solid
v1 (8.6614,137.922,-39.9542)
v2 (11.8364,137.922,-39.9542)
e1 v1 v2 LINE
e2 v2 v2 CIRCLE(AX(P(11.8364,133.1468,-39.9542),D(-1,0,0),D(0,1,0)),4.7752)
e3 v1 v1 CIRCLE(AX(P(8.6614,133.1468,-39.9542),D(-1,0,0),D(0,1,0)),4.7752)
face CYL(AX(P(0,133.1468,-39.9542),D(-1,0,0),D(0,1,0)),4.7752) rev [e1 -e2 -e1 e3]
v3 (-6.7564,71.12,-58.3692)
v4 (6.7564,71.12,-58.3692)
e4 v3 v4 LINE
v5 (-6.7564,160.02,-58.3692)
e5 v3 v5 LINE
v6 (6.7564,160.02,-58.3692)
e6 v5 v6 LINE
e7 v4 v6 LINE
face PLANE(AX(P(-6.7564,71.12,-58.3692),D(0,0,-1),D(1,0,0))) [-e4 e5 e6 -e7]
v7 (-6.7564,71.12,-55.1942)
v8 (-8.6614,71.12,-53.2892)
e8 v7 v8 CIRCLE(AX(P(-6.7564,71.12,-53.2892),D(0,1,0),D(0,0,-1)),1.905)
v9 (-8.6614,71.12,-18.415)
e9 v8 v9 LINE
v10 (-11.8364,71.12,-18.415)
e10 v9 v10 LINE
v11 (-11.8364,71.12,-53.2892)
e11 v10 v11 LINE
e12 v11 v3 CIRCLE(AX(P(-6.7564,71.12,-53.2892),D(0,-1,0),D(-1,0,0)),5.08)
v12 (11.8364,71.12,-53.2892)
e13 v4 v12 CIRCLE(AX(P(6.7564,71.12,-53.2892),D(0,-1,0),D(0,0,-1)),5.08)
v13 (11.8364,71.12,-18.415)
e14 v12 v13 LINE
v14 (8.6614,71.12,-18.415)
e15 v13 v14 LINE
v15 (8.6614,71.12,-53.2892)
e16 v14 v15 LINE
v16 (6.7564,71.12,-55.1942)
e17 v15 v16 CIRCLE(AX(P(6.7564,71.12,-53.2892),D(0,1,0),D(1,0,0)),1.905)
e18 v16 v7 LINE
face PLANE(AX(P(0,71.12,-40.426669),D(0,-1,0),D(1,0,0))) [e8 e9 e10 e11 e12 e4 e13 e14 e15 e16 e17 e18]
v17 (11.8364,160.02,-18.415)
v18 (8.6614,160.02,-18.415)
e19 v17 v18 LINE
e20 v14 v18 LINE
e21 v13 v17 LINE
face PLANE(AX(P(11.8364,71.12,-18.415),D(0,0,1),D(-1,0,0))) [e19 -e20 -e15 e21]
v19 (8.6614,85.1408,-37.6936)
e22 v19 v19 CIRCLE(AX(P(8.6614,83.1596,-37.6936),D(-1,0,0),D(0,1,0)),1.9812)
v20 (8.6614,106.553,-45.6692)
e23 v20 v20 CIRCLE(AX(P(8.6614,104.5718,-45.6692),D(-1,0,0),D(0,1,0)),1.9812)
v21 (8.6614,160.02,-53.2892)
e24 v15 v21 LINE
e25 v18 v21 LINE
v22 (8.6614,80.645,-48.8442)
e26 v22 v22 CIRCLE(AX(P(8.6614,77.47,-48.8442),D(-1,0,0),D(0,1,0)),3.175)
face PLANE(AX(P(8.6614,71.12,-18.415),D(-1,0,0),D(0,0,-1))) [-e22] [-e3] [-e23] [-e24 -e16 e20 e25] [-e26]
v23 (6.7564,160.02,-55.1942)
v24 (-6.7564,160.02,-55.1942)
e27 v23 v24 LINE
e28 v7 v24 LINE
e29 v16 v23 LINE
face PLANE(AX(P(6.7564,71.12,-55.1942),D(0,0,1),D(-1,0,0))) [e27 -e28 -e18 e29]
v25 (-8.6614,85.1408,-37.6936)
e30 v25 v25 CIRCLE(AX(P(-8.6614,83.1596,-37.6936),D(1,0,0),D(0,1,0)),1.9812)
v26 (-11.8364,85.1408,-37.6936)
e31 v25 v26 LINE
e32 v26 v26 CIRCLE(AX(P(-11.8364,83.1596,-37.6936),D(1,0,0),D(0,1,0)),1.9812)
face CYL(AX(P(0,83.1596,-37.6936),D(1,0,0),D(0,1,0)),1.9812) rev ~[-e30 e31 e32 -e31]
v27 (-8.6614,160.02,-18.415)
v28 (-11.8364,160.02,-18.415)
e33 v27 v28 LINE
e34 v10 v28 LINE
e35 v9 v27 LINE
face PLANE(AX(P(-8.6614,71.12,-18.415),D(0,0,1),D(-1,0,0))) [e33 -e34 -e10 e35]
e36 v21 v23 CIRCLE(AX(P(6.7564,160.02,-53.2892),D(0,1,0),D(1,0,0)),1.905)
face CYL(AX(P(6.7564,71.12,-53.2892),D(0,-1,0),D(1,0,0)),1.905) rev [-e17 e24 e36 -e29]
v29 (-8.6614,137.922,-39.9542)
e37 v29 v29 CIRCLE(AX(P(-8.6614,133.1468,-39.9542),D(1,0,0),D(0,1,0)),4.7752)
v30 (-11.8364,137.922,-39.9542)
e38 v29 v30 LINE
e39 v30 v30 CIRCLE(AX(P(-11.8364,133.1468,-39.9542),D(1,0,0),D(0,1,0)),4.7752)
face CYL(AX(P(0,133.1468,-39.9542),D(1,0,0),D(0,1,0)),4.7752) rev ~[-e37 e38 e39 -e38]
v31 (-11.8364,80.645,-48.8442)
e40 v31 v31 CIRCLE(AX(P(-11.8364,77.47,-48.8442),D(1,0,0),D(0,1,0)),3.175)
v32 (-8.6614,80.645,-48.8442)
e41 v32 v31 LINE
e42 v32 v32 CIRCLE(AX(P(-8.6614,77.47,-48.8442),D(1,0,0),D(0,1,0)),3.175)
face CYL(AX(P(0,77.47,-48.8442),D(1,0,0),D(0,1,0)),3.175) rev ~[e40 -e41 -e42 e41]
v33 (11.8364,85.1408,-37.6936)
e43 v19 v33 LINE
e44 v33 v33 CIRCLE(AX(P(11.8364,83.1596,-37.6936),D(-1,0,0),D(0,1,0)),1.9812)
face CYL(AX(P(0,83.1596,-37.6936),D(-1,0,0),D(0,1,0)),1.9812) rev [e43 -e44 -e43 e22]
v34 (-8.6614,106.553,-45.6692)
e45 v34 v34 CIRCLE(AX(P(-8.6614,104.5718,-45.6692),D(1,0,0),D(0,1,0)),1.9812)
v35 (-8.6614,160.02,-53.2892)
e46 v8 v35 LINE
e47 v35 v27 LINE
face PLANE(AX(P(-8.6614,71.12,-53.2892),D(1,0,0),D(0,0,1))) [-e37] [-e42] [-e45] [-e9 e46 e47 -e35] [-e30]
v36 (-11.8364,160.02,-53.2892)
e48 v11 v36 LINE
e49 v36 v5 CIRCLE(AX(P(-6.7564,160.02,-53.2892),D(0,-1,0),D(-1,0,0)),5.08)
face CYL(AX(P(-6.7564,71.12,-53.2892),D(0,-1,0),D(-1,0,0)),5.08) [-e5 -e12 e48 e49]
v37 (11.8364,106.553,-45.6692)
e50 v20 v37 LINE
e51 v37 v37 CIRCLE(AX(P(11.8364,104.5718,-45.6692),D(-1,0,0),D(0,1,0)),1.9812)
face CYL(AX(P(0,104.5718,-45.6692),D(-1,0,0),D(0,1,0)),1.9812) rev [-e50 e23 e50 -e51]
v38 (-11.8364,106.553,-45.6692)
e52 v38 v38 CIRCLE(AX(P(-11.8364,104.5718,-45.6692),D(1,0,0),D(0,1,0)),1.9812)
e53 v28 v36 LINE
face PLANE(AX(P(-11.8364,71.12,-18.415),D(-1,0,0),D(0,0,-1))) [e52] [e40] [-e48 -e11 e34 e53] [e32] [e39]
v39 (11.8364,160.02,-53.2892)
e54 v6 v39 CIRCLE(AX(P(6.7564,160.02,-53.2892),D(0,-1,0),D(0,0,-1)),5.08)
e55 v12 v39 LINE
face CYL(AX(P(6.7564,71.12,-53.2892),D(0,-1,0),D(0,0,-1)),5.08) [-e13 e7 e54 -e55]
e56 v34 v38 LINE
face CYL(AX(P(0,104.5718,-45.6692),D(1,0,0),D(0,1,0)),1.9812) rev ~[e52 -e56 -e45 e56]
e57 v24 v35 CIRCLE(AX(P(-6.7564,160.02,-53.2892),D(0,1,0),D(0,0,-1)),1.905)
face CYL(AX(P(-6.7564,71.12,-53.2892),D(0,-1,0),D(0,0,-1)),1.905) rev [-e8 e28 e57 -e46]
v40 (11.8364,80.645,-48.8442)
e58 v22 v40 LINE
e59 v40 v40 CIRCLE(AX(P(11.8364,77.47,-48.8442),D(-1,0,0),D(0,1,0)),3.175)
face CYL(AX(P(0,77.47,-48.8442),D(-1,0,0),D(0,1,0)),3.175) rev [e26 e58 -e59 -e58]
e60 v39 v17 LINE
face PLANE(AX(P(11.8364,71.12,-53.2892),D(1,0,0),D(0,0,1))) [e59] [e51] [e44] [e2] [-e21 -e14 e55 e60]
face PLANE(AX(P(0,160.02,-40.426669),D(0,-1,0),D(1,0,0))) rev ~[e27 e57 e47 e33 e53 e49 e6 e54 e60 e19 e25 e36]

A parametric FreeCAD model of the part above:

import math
import FreeCAD as App
import Part
import Sketcher
Q = App.Units.Quantity

doc = App.newDocument("Part")
body = doc.addObject("PartDesign::Body", "Body")

sketch1 = body.newObject("Sketcher::SketchObject", "Sketch")
sketch1.AttachmentSupport = (doc.getObject("XZ_Plane"), [""])
sketch1.MapMode = "FlatFace"
sketch1.AttachmentOffset = App.Placement(App.Vector(0, 0, -2.8 * 25.4), App.Rotation())
sketch1.addGeometry([
    Part.LineSegment(App.Vector(-8.6614, -53.2892, 0), App.Vector(-8.6614, -18.415, 0)),
    Part.LineSegment(App.Vector(-8.6614, -18.415, 0), App.Vector(-11.8364, -18.415, 0)),
    Part.LineSegment(App.Vector(-11.8364, -18.415, 0), App.Vector(-11.8364, -53.2892, 0)),
    Part.ArcOfCircle(Part.Circle(App.Vector(-6.7564, -53.2892, 0), App.Vector(0, 0, 1), 5.08), math.radians(180), math.radians(270)),
    Part.LineSegment(App.Vector(-6.7564, -58.3692, 0), App.Vector(6.7564, -58.3692, 0)),
    Part.ArcOfCircle(Part.Circle(App.Vector(6.7564, -53.2892, 0), App.Vector(0, 0, 1), 5.08), math.radians(-90), math.radians(0)),
    Part.LineSegment(App.Vector(11.8364, -53.2892, 0), App.Vector(11.8364, -18.415, 0)),
    Part.LineSegment(App.Vector(11.8364, -18.415, 0), App.Vector(8.6614, -18.415, 0)),
    Part.LineSegment(App.Vector(8.6614, -18.415, 0), App.Vector(8.6614, -53.2892, 0)),
    Part.ArcOfCircle(Part.Circle(App.Vector(6.7564, -53.2892, 0), App.Vector(0, 0, 1), 1.905), math.radians(-90), math.radians(0)),
    Part.LineSegment(App.Vector(6.7564, -55.1942, 0), App.Vector(-6.7564, -55.1942, 0)),
    Part.ArcOfCircle(Part.Circle(App.Vector(-6.7564, -53.2892, 0), App.Vector(0, 0, 1), 1.905), math.radians(180), math.radians(270)),
], False)
sketch1.addConstraint([
    Sketcher.Constraint("Coincident", 0, 2, 1, 1),
    Sketcher.Constraint("Coincident", 1, 2, 2, 1),
    Sketcher.Constraint("Tangent", 2, 2, 3, 1),
    Sketcher.Constraint("Tangent", 3, 2, 4, 1),
    Sketcher.Constraint("Tangent", 4, 2, 5, 1),
    Sketcher.Constraint("Tangent", 5, 2, 6, 1),
    Sketcher.Constraint("Coincident", 6, 2, 7, 1),
    Sketcher.Constraint("Coincident", 7, 2, 8, 1),
    Sketcher.Constraint("Tangent", 8, 2, 9, 2),
    Sketcher.Constraint("Tangent", 9, 1, 10, 1),
    Sketcher.Constraint("Tangent", 10, 2, 11, 2),
    Sketcher.Constraint("Tangent", 11, 1, 0, 1),
    Sketcher.Constraint("Vertical", 0),
    Sketcher.Constraint("Horizontal", 1),
    Sketcher.Constraint("Vertical", 2),
    Sketcher.Constraint("Horizontal", 4),
    Sketcher.Constraint("Vertical", 6),
    Sketcher.Constraint("Horizontal", 7),
    Sketcher.Constraint("Vertical", 8),
    Sketcher.Constraint("Horizontal", 10),
    Sketcher.Constraint("Coincident", 9, 3, 5, 3),
    Sketcher.Constraint("Coincident", 11, 3, 3, 3),
    Sketcher.Constraint("Equal", 3, 5),
    Sketcher.Constraint("Symmetric", 1, 2, 6, 2, -2),
    Sketcher.Constraint("Radius", 3, Q("0.2 in")),
    Sketcher.Constraint("Radius", 9, Q("0.075 in")),
    Sketcher.Constraint("DistanceX", 4, 1, 4, 2, Q("0.532 in")),
    Sketcher.Constraint("DistanceY", 0, 1, 0, 2, Q("1.373 in")),
    Sketcher.Constraint("DistanceY", 3, 3, -1, 1, Q("2.098 in")),
])
pad1 = body.newObject("PartDesign::Pad", "Pad")
pad1.Profile = sketch1
pad1.Length = Q("3.5 in")
pad1.Reversed = True

sketch2 = body.newObject("Sketcher::SketchObject", "Sketch001")
sketch2.AttachmentSupport = (doc.getObject("YZ_Plane"), [""])
sketch2.MapMode = "FlatFace"
sketch2.addGeometry([
    Part.Circle(App.Vector(77.47, -48.8442, 0), App.Vector(0, 0, 1), 3.175),
    Part.Circle(App.Vector(83.1596, -37.6936, 0), App.Vector(0, 0, 1), 1.9812),
    Part.Circle(App.Vector(104.5718, -45.6692, 0), App.Vector(0, 0, 1), 1.9812),
    Part.Circle(App.Vector(133.1468, -39.9542, 0), App.Vector(0, 0, 1), 4.7752),
], False)
sketch2.addConstraint([
    Sketcher.Constraint("Equal", 1, 2),
    Sketcher.Constraint("Diameter", 0, Q("0.25 in")),
    Sketcher.Constraint("Diameter", 1, Q("0.156 in")),
    Sketcher.Constraint("Diameter", 3, Q("0.376 in")),
    Sketcher.Constraint("DistanceX", -1, 1, 0, 3, Q("3.05 in")),
    Sketcher.Constraint("DistanceY", 0, 3, 3, 3, Q("0.35 in")),
    Sketcher.Constraint("DistanceY", 0, 3, -1, 1, Q("1.923 in")),
    Sketcher.Constraint("DistanceX", -1, 1, 1, 3, Q("3.274 in")),
    Sketcher.Constraint("DistanceY", 1, 3, -1, 1, Q("1.484 in")),
    Sketcher.Constraint("DistanceX", -1, 1, 2, 3, Q("4.117 in")),
    Sketcher.Constraint("DistanceY", 2, 3, -1, 1, Q("1.798 in")),
    Sketcher.Constraint("DistanceX", -1, 1, 3, 3, Q("5.242 in")),
])
pocket1 = body.newObject("PartDesign::Pocket", "Pocket")
pocket1.Profile = sketch2
pocket1.Type = "ThroughAll"
pocket1.Midplane = True

doc.recompute()
